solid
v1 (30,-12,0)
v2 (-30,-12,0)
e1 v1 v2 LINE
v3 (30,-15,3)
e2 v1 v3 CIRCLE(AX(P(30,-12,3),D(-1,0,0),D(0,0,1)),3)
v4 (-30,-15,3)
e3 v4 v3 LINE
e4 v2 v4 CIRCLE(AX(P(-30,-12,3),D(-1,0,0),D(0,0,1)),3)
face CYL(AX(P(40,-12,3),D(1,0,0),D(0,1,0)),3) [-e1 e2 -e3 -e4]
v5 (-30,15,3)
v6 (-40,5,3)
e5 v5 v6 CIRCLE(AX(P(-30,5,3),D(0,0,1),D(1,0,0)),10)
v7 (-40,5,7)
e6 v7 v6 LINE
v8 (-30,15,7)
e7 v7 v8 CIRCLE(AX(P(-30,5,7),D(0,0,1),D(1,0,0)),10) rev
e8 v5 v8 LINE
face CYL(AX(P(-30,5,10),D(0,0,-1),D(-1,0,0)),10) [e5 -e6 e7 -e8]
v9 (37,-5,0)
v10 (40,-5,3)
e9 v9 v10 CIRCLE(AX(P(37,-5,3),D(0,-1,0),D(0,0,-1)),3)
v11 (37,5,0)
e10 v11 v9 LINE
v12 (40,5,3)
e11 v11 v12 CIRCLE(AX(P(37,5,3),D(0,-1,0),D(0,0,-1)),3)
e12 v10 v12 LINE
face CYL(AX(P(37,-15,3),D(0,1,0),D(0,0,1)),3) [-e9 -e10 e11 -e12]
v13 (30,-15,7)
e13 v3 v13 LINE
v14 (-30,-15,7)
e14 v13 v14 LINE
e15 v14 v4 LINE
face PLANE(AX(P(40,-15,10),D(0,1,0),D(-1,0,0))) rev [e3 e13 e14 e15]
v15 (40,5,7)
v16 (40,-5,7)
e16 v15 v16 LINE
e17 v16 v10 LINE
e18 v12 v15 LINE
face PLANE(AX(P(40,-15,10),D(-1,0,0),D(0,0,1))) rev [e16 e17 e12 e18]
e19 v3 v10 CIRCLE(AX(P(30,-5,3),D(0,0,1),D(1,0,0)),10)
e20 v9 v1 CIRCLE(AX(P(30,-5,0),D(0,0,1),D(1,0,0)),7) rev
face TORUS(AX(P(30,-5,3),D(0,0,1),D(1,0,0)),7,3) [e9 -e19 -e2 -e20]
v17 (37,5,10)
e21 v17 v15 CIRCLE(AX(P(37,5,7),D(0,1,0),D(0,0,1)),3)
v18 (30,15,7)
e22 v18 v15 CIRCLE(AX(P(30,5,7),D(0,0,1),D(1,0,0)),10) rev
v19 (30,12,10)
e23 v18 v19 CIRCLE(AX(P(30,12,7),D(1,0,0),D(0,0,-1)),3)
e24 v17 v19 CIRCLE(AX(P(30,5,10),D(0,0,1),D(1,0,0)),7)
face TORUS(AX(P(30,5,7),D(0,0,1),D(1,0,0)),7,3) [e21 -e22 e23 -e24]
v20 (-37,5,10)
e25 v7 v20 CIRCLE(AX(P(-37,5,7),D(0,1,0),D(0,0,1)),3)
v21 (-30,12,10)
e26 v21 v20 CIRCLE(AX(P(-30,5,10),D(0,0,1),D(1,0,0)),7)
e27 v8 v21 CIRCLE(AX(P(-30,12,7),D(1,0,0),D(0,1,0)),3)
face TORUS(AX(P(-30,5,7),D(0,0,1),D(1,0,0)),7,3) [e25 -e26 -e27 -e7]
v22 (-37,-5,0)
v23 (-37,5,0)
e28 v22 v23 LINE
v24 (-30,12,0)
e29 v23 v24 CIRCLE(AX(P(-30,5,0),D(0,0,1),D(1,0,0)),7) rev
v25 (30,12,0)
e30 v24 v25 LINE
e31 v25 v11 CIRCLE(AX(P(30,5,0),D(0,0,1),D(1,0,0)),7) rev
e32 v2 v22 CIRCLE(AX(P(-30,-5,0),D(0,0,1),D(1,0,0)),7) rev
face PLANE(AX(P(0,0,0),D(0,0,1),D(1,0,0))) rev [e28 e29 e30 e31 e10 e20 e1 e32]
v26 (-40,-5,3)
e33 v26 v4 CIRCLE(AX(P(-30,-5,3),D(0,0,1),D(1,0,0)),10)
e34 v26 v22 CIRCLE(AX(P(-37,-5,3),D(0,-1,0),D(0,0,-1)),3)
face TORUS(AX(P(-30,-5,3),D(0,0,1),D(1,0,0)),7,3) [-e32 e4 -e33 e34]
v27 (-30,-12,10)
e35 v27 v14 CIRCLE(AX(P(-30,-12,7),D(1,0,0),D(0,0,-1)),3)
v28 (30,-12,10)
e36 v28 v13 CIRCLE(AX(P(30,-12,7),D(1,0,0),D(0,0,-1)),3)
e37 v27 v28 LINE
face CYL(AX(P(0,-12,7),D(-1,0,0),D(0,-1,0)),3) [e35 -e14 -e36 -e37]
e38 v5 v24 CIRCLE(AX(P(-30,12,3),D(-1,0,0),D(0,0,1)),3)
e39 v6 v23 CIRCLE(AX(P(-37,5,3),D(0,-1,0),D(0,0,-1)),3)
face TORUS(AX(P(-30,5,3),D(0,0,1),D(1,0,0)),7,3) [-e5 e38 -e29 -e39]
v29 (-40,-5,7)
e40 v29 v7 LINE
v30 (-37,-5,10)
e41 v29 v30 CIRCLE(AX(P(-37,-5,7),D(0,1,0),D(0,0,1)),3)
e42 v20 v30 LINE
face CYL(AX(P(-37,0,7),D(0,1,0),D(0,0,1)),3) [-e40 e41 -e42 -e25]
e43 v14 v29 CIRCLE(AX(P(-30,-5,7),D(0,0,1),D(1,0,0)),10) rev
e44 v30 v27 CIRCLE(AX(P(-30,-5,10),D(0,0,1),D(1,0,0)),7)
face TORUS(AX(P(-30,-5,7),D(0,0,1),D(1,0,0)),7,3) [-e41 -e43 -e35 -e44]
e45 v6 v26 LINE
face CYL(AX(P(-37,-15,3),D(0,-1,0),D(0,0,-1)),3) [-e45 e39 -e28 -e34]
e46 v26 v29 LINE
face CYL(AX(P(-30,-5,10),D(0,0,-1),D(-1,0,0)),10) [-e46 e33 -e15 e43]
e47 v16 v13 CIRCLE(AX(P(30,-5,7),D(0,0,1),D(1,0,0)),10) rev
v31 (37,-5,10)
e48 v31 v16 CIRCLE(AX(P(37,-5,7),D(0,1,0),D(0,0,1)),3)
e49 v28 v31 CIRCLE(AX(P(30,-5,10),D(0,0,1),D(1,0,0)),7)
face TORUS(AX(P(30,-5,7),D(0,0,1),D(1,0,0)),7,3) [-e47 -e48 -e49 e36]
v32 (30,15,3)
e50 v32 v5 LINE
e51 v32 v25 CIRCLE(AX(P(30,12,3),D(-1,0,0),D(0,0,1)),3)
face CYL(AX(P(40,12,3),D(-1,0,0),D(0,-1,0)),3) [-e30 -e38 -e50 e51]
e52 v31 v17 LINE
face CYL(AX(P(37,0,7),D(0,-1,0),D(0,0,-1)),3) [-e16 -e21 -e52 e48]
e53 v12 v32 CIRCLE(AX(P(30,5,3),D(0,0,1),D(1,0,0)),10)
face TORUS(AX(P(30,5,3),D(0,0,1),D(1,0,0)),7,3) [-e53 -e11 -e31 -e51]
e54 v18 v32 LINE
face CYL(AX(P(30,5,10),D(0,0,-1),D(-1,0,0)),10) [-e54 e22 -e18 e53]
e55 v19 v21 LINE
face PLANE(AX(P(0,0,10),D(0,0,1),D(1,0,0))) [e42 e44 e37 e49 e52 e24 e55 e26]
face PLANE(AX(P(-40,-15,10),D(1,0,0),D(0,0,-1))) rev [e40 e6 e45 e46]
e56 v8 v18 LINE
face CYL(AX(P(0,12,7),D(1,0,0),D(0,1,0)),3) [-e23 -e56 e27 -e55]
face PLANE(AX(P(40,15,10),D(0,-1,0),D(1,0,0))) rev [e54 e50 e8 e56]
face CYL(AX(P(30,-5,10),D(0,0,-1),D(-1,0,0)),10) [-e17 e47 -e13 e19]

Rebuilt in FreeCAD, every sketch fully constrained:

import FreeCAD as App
import Part
import Sketcher
from FreeCAD import Vector
Q = App.Units.Quantity


def edges_at(feature, points):
    """Names of the edges that pass closest to the given points."""
    edges = feature.Shape.Edges
    near = lambda p: min(range(len(edges)), key=lambda i: edges[i].distToShape(Part.Vertex(*p))[0])
    return sorted({f"Edge{near(p) + 1}" for p in points})


def add_polygon(sketch, points):
    """Adds a closed chain of lines whose ends are joined by coincident constraints."""
    first, n = sketch.GeometryCount, len(points)
    for a, b in zip(points, points[1:] + points[:1]):
        sketch.addGeometry(Part.LineSegment(App.Vector(*a, 0), App.Vector(*b, 0)), False)
    for i in range(n):
        sketch.addConstraint(Sketcher.Constraint("Coincident", first + i, 2, first + (i + 1) % n, 1))

doc = App.newDocument("Part")
body = doc.addObject("PartDesign::Body", "Body")

# Sketch on XY plane
sketch1 = body.newObject("Sketcher::SketchObject", "Sketch")
sketch1.AttachmentSupport = (doc.getObject("XY_Plane"), [""])
sketch1.MapMode = "FlatFace"
add_polygon(sketch1, [(-40, 15), (-40, -15), (40, -15), (40, 15)])  # lines 0-3
sketch1.addConstraint([
    Sketcher.Constraint("Vertical", 0),
    Sketcher.Constraint("Horizontal", 1),
    Sketcher.Constraint("Vertical", 2),
    Sketcher.Constraint("Horizontal", 3),
    Sketcher.Constraint("Symmetric", 0, 2, 2, 2, -1, 1),
    Sketcher.Constraint("DistanceX", 1, 1, 1, 2, Q("80 mm")),
    Sketcher.Constraint("DistanceY", 0, 2, 0, 1, Q("30 mm")),
])
pad1 = body.newObject("PartDesign::Pad", "Pad")
pad1.Profile = sketch1
pad1.Length = 10
doc.recompute()

fillet = body.newObject("PartDesign::Fillet", "Fillet")
fillet.Base = (pad1, edges_at(pad1, [
    (-40, 15, 5),
    (40, 15, 5),
    (40, -15, 5),
    (-40, -15, 5),
]))
fillet.Radius = 10
doc.recompute()

fillet2 = body.newObject("PartDesign::Fillet", "Fillet001")
fillet2.Base = (fillet, edges_at(fillet, [
    (40, 0, 0),
    (40, 0, 10),
    (-40, 0, 0),
    (0, 15, 0),
    (0, -15, 0),
    (-37.071, -12.071, 0),
    (-37.071, 12.071, 0),
    (37.071, 12.071, 0),
    (37.071, -12.071, 0),
    (0, -15, 10),
    (-40, 0, 10),
    (0, 15, 10),
    (-37.071, -12.071, 10),
    (-37.071, 12.071, 10),
    (37.071, 12.071, 10),
    (37.071, -12.071, 10),
]))
fillet2.Radius = 3

doc.recompute()
